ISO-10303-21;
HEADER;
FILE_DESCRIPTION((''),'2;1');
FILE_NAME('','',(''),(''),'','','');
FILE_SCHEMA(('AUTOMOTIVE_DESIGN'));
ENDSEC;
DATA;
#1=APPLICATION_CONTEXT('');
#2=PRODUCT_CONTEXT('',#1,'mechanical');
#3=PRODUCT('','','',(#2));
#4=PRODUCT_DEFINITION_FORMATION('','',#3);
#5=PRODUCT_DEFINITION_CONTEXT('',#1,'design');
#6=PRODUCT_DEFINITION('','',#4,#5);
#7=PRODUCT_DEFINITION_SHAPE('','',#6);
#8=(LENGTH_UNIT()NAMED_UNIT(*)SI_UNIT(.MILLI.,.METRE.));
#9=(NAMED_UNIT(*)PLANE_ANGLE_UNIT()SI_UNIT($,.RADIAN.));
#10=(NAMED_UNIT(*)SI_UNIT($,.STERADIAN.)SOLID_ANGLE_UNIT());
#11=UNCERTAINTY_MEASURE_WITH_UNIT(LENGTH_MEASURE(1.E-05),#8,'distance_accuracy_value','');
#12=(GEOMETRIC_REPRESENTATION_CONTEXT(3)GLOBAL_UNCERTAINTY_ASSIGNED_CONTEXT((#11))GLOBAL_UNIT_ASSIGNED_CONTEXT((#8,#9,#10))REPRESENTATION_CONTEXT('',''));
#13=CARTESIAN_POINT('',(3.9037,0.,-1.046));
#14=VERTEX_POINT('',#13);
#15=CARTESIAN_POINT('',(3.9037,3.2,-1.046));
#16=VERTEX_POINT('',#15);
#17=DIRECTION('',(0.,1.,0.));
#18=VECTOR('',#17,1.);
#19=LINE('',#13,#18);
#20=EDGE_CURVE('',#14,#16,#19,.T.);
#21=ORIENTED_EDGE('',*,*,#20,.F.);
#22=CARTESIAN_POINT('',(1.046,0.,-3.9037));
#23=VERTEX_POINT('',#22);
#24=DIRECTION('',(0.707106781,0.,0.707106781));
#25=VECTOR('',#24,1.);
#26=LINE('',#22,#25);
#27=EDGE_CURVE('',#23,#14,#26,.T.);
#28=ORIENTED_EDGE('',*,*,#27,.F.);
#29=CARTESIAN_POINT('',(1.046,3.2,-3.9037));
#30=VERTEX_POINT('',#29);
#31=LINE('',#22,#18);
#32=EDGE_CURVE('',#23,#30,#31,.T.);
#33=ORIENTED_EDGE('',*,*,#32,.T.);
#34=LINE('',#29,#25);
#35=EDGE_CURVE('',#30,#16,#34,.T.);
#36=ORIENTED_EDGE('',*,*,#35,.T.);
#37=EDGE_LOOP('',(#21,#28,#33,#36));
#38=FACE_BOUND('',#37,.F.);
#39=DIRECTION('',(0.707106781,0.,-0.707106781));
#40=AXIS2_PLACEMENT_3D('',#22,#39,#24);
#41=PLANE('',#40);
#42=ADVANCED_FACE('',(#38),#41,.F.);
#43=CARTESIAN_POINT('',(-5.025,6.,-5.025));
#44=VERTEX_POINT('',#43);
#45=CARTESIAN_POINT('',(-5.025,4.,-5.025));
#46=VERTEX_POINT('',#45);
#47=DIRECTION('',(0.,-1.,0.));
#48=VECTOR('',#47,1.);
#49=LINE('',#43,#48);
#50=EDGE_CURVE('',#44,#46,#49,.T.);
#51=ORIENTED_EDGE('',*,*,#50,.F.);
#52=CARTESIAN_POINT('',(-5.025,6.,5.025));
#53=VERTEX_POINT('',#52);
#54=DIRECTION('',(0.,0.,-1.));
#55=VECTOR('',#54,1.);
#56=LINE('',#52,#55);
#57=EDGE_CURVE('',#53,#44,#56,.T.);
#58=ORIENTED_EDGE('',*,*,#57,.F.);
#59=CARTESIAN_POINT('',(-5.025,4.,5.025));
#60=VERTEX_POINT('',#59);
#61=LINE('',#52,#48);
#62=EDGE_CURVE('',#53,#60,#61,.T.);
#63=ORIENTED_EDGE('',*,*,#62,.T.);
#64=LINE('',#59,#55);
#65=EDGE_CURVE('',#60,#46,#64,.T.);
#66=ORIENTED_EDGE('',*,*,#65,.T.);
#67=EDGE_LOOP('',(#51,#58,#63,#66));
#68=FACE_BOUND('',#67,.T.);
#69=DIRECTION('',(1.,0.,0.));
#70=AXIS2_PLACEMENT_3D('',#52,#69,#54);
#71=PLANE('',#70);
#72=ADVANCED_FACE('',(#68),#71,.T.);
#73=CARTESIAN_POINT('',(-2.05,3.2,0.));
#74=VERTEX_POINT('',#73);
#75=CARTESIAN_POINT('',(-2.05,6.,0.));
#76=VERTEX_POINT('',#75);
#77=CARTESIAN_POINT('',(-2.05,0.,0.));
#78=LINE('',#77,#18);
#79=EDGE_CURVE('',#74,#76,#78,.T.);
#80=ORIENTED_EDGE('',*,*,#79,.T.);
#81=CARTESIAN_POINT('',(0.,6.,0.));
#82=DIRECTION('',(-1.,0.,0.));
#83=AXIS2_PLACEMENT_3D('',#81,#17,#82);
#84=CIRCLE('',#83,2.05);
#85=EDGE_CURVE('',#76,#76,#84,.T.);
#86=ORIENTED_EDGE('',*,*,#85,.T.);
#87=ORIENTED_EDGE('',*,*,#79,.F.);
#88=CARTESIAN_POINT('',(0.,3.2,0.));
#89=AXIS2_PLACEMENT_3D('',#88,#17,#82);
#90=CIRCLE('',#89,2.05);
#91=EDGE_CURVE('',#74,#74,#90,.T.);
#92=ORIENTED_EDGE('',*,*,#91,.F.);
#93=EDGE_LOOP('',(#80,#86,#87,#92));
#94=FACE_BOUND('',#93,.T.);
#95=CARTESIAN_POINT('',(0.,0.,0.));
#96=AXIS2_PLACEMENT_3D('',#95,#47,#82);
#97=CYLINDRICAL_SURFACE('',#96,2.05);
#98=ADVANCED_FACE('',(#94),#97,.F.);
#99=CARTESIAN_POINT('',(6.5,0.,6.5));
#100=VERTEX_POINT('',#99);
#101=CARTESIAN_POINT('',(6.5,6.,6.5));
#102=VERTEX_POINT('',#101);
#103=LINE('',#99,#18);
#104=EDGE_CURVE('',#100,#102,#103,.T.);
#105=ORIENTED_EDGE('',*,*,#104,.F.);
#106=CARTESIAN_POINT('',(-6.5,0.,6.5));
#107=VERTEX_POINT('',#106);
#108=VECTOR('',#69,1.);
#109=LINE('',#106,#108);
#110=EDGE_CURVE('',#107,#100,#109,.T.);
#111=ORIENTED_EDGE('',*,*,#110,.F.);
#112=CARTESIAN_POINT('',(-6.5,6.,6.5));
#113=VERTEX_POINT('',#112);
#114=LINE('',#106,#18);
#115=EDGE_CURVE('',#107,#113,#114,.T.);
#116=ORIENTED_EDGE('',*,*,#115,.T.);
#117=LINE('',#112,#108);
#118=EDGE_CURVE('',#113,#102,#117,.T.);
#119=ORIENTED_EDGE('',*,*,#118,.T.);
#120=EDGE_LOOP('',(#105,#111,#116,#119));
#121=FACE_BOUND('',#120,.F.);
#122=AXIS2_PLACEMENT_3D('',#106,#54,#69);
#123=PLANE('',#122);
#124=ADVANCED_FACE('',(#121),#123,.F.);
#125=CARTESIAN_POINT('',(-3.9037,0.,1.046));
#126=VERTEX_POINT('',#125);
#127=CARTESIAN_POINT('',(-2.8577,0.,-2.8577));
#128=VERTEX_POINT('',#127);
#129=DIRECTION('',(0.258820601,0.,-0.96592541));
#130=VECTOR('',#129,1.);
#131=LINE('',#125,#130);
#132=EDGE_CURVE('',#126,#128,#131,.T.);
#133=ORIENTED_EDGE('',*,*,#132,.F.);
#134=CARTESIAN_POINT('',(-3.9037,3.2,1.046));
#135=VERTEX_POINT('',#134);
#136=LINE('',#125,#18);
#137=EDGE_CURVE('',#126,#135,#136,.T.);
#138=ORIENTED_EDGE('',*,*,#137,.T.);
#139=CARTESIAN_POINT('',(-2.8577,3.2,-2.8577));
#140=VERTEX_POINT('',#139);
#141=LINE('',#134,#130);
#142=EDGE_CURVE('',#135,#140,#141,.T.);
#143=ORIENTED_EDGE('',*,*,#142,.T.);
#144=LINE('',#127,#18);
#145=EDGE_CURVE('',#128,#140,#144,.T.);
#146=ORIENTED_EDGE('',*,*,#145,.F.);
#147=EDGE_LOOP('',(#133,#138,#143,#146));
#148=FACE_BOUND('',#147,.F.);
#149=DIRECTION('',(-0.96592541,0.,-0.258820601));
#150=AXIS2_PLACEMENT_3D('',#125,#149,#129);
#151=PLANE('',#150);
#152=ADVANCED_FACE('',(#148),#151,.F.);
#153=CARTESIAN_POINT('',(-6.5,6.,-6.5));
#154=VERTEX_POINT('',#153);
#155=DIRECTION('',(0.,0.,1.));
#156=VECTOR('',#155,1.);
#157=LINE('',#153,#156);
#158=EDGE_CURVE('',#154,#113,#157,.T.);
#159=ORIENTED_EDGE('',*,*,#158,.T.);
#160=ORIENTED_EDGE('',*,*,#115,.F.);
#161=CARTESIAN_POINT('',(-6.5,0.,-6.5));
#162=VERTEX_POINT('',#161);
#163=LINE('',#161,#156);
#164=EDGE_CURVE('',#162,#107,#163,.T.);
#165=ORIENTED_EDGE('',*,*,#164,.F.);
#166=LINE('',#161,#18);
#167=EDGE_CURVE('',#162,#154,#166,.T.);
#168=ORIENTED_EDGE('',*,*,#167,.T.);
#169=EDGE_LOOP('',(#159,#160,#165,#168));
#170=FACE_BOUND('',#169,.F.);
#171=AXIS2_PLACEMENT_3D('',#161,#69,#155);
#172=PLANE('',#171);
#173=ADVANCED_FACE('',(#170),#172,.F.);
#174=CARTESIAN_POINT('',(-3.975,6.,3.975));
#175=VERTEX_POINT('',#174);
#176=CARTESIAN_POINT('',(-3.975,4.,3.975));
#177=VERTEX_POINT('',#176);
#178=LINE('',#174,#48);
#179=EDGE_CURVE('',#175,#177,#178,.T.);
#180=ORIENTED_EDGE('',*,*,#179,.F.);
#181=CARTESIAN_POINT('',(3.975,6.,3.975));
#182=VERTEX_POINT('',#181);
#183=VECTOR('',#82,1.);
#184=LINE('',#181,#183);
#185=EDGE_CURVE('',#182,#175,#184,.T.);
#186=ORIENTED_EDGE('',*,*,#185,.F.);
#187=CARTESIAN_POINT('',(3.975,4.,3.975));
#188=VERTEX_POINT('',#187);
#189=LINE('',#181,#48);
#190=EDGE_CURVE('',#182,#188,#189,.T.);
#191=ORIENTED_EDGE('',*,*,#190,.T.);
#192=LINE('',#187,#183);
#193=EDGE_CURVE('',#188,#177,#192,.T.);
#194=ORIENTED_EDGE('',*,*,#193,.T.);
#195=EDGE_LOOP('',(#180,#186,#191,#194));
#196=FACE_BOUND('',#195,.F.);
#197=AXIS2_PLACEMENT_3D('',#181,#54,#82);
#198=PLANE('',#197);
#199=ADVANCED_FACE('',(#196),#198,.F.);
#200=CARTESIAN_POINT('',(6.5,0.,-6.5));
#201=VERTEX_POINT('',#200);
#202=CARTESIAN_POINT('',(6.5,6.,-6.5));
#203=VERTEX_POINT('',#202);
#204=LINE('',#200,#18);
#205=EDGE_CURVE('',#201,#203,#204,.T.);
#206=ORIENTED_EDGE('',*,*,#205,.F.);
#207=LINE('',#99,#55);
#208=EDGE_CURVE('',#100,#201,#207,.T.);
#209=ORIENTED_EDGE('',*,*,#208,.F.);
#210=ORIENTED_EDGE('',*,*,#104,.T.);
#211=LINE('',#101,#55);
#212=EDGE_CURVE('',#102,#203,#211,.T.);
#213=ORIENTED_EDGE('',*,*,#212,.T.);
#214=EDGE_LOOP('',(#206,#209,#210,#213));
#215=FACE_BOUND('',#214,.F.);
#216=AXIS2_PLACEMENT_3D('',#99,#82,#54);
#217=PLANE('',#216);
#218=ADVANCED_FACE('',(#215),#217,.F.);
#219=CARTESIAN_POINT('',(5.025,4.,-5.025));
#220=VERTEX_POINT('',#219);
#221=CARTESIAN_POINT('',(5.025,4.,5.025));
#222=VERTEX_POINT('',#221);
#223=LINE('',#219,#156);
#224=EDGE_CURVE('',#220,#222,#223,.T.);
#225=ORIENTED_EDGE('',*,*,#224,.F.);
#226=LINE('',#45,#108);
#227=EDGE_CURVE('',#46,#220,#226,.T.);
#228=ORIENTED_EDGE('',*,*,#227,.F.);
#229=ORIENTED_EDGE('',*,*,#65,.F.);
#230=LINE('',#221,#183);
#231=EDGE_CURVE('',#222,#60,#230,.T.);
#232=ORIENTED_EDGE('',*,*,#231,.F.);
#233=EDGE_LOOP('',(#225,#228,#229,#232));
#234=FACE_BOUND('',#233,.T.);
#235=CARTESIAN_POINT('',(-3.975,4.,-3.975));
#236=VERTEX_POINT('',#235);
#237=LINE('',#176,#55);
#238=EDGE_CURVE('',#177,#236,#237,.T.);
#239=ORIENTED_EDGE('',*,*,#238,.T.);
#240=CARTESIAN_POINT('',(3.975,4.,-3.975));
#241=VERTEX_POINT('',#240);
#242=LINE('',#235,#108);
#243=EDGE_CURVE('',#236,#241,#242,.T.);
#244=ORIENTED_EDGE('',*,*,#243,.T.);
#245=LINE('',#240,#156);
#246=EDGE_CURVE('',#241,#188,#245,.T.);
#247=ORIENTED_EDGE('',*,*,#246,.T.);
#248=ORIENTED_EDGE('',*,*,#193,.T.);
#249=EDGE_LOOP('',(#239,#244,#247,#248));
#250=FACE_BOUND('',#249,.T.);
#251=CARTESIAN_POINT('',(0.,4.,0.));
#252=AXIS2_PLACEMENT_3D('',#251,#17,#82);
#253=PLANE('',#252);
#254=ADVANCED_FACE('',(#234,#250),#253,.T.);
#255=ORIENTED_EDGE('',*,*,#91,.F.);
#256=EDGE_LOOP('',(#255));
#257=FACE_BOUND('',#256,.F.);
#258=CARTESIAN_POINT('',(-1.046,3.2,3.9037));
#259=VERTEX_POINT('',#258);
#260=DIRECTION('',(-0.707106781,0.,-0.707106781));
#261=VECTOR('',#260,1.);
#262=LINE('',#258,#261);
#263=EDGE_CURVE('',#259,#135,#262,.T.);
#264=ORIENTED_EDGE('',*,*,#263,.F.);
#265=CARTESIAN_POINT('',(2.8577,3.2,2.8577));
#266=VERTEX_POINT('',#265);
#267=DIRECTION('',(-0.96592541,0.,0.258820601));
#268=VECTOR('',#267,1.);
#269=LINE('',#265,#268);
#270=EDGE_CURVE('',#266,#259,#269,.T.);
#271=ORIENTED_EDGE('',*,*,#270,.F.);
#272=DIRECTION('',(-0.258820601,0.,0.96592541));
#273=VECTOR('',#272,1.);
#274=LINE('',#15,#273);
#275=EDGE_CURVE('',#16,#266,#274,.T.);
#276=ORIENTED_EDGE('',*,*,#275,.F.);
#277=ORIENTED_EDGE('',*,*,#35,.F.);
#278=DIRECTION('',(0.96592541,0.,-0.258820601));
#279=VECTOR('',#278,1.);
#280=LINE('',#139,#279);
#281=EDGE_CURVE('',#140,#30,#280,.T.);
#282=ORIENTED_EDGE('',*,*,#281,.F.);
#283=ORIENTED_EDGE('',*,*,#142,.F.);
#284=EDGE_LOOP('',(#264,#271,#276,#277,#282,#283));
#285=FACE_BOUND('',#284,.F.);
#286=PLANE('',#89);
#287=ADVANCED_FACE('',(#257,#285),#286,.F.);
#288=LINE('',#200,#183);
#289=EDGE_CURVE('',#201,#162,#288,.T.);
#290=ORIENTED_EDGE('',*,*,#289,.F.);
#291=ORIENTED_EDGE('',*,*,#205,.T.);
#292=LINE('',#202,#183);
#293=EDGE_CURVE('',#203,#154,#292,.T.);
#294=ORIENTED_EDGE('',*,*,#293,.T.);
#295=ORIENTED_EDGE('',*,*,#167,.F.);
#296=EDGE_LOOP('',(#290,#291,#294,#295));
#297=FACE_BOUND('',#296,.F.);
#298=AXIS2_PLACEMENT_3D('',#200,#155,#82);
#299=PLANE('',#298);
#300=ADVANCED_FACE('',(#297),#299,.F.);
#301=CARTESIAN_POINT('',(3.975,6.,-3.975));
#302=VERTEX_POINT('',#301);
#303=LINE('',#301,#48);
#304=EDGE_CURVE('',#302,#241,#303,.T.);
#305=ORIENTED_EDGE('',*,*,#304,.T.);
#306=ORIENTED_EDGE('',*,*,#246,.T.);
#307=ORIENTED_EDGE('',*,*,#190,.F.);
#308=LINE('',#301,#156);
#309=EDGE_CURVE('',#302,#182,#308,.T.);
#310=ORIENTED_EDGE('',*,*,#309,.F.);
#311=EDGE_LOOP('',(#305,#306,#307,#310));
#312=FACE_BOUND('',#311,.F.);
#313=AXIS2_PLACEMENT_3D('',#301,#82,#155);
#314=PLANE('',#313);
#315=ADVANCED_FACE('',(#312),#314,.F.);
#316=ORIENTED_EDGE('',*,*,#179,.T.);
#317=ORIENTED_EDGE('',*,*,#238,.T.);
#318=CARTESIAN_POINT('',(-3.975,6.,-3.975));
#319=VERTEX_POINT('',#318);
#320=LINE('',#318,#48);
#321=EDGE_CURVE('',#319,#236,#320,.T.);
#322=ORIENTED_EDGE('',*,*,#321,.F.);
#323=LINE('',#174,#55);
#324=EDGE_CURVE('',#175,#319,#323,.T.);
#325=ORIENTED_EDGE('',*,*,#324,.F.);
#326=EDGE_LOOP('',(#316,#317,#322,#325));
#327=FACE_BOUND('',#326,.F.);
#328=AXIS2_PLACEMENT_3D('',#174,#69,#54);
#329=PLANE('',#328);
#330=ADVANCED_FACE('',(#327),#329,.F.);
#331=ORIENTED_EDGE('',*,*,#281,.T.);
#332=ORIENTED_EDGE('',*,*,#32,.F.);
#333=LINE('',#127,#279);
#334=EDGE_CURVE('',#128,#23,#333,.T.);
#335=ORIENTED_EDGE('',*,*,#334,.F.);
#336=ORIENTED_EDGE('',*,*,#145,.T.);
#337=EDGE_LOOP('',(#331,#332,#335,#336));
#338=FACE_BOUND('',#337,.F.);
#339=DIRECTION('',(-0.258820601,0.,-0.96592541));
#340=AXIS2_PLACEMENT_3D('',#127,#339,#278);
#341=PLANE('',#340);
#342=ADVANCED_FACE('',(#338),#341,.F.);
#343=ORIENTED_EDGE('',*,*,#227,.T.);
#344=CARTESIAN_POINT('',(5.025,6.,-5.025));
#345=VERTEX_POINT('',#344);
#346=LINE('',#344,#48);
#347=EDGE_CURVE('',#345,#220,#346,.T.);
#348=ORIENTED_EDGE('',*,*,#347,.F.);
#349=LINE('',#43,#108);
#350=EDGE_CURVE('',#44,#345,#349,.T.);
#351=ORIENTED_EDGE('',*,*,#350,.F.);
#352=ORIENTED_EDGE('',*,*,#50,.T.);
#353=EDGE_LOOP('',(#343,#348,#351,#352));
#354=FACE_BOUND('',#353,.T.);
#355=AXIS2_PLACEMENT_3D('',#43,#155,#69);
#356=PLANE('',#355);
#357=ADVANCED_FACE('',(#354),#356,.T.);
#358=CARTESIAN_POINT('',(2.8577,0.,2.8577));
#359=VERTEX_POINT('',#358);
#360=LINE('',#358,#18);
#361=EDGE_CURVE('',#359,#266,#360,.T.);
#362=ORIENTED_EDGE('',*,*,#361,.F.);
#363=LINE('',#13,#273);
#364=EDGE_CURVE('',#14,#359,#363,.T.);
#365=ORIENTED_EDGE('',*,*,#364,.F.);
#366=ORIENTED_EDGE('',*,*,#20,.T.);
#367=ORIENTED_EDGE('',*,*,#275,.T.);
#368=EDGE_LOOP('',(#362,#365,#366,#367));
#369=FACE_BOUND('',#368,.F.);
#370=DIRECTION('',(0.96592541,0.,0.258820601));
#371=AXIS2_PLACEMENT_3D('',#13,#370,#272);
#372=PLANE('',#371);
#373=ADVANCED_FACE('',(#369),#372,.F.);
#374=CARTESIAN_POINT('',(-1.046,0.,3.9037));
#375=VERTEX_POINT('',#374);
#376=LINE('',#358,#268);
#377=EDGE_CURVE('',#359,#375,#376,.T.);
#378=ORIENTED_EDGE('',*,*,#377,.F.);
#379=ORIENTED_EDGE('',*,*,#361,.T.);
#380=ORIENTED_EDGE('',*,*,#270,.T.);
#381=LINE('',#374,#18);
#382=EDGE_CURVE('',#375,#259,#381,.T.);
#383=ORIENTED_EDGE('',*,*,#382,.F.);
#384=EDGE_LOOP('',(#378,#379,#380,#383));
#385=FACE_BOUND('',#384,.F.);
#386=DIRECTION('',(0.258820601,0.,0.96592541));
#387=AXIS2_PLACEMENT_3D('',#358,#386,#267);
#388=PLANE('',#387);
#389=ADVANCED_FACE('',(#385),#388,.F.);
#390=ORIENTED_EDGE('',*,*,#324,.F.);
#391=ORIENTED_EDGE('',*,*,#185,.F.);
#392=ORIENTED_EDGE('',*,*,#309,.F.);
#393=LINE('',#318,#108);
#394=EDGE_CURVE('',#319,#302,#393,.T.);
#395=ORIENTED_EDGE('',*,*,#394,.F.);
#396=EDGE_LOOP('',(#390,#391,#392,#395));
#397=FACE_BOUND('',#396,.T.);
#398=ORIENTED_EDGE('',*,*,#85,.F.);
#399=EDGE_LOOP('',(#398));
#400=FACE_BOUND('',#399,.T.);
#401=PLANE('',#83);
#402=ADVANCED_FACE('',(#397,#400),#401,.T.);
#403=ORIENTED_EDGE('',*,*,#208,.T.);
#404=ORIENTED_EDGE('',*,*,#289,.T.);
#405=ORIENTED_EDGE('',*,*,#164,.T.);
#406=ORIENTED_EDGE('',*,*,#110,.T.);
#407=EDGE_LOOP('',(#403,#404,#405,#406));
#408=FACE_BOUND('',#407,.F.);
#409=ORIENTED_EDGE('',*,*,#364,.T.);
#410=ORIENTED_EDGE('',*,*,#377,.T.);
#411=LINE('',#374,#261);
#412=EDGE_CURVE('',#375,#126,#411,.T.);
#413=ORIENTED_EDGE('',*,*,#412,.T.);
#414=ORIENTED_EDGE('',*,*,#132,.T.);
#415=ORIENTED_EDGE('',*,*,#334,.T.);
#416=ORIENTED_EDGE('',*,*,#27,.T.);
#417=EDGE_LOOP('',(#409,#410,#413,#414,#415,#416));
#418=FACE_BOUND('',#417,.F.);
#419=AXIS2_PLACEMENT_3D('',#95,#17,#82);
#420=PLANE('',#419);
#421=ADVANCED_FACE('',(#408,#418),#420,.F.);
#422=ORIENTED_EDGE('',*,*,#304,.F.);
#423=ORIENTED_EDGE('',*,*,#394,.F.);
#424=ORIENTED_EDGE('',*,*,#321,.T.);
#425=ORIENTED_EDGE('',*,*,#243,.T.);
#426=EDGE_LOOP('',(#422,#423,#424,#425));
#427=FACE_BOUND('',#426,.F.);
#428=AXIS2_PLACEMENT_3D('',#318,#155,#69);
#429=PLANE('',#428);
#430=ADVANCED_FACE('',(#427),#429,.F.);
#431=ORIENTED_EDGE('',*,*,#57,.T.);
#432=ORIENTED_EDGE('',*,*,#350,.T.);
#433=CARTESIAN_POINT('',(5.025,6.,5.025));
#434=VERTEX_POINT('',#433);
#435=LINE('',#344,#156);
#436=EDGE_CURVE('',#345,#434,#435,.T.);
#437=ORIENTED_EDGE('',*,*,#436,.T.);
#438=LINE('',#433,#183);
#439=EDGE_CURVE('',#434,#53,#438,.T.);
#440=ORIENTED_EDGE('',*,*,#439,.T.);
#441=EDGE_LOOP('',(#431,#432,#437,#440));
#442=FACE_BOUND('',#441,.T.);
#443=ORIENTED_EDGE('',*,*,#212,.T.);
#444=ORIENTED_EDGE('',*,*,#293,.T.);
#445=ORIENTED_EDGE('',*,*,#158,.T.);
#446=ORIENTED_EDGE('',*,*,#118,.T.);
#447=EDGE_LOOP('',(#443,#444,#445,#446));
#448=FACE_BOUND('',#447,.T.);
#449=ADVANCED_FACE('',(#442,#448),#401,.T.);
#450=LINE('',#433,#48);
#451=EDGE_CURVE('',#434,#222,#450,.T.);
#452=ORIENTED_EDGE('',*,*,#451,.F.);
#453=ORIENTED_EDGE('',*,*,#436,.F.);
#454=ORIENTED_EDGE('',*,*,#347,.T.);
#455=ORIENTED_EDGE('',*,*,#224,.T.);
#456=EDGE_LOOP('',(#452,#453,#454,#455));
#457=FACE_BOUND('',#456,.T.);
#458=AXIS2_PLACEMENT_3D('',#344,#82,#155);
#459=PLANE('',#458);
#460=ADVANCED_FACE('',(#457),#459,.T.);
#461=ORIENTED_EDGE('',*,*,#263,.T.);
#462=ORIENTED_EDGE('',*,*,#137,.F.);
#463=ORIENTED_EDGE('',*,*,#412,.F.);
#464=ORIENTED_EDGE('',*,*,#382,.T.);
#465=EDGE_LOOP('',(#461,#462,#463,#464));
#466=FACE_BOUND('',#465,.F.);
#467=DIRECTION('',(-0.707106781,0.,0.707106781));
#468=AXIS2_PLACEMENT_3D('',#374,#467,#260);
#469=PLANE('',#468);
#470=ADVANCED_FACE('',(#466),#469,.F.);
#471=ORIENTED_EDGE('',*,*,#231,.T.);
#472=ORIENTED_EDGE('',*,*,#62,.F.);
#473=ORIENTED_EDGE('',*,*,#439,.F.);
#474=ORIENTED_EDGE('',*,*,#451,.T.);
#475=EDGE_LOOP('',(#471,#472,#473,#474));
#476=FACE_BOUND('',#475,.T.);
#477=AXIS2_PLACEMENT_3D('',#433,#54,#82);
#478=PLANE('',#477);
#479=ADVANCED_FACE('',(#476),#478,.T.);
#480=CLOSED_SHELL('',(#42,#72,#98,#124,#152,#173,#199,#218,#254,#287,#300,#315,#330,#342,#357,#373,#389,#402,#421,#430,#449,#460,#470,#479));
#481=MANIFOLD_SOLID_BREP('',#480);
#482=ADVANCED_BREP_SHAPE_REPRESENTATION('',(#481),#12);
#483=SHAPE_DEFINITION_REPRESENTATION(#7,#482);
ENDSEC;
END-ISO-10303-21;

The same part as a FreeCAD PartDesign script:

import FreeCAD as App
import Part
import Sketcher
Q = App.Units.Quantity


def add_polygon(sketch, points):
    """Adds a closed chain of lines whose ends are joined by coincident constraints."""
    first, n = sketch.GeometryCount, len(points)
    for a, b in zip(points, points[1:] + points[:1]):
        sketch.addGeometry(Part.LineSegment(App.Vector(*a, 0), App.Vector(*b, 0)), False)
    for i in range(n):
        sketch.addConstraint(Sketcher.Constraint("Coincident", first + i, 2, first + (i + 1) % n, 1))

doc = App.newDocument("Part")
body = doc.addObject("PartDesign::Body", "Body")

sketch1 = body.newObject("Sketcher::SketchObject", "Sketch")
sketch1.AttachmentSupport = (doc.getObject("XZ_Plane"), [""])
sketch1.MapMode = "FlatFace"
add_polygon(sketch1, [(6, 6), (6, -6), (-6, -6), (-6, 6)])
sketch1.addConstraint([
    Sketcher.Constraint("Vertical", 0),
    Sketcher.Constraint("Horizontal", 1),
    Sketcher.Constraint("Vertical", 2),
    Sketcher.Constraint("Horizontal", 3),
    Sketcher.Constraint("Symmetric", 0, 2, 2, 2, -1, 1),
    Sketcher.Constraint("Equal", 3, 0),
    Sketcher.Constraint("DistanceX", 1, 2, 1, 1, Q("13 mm")),
])
pad1 = body.newObject("PartDesign::Pad", "Pad")
pad1.Profile = sketch1
pad1.Length = 6
pad1.Reversed = True

sketch2 = body.newObject("Sketcher::SketchObject", "Sketch001")
sketch2.AttachmentSupport = (doc.getObject("XZ_Plane"), [""])
sketch2.MapMode = "FlatFace"
sketch2.AttachmentOffset = App.Placement(App.Vector(0, 0, -6), App.Rotation())
add_polygon(sketch2, [(5, -5), (-5, -5), (-5, 5), (5, 5)])
add_polygon(sketch2, [(-4, 4), (-4, -4), (4, -4), (4, 4)])
sketch2.addConstraint([
    Sketcher.Constraint("Horizontal", 0),
    Sketcher.Constraint("Vertical", 1),
    Sketcher.Constraint("Horizontal", 2),
    Sketcher.Constraint("Vertical", 3),
    Sketcher.Constraint("Vertical", 4),
    Sketcher.Constraint("Horizontal", 5),
    Sketcher.Constraint("Vertical", 6),
    Sketcher.Constraint("Horizontal", 7),
    Sketcher.Constraint("Symmetric", 0, 2, 2, 2, -1, 1),
    Sketcher.Constraint("Symmetric", 4, 2, 6, 2, -1, 1),
    Sketcher.Constraint("Equal", 2, 1),
    Sketcher.Constraint("Equal", 7, 4),
    Sketcher.Constraint("DistanceX", 0, 2, 0, 1, Q("10.05 mm")),
    Sketcher.Constraint("DistanceX", 5, 1, 5, 2, Q("7.95 mm")),
])
pocket1 = body.newObject("PartDesign::Pocket", "Pocket")
pocket1.Profile = sketch2
pocket1.Length = 2
pocket1.Reversed = True

sketch3 = body.newObject("Sketcher::SketchObject", "Sketch002")
sketch3.AttachmentSupport = (doc.getObject("XZ_Plane"), [""])
sketch3.MapMode = "FlatFace"
add_polygon(sketch3, [(-3.9, 1), (-1, 3.9), (2.9, 2.9), (3.9, -1), (1, -3.9), (-2.9, -2.9)])
sketch3.addGeometry(Part.Circle(App.Vector(0, 0, 0), App.Vector(0, 0, 1), 2), False)
sketch3.addConstraint([
    Sketcher.Constraint("Coincident", 6, 3, -1, 1),
    Sketcher.Constraint("Symmetric", 0, 2, 3, 2, -1, 1),
    Sketcher.Constraint("Symmetric", 1, 2, 4, 2, -1, 1),
    Sketcher.Constraint("Symmetric", 2, 2, 5, 2, -1, 1),
    Sketcher.Constraint("Equal", 0, 1),
    Sketcher.Constraint("Equal", 1, 2),
    Sketcher.Constraint("Diameter", 6, Q("4.1 mm")),
    Sketcher.Constraint("Angle", 0, Q("45 deg")),
    Sketcher.Constraint("Angle", 1, Q("-15 deg")),
    Sketcher.Constraint("Angle", 2, Q("-75 deg")),
    Sketcher.Constraint("DistanceX", 0, 2, -1, 1, Q("1.046 mm")),
])
pocket2 = body.newObject("PartDesign::Pocket", "Pocket001")
pocket2.Profile = sketch3
pocket2.Length = 3.2

sketch4 = body.newObject("Sketcher::SketchObject", "Sketch003")
sketch4.AttachmentSupport = (doc.getObject("XZ_Plane"), [""])
sketch4.MapMode = "FlatFace"
sketch4.addGeometry(Part.Circle(App.Vector(0, 0, 0), App.Vector(0, 0, 1), 2), False)
sketch4.addConstraint([
    Sketcher.Constraint("Coincident", 0, 3, -1, 1),
    Sketcher.Constraint("Diameter", 0, Q("4.1 mm")),
])
pocket3 = body.newObject("PartDesign::Pocket", "Pocket002")
pocket3.Profile = sketch4
pocket3.Length = 6

doc.recompute()
